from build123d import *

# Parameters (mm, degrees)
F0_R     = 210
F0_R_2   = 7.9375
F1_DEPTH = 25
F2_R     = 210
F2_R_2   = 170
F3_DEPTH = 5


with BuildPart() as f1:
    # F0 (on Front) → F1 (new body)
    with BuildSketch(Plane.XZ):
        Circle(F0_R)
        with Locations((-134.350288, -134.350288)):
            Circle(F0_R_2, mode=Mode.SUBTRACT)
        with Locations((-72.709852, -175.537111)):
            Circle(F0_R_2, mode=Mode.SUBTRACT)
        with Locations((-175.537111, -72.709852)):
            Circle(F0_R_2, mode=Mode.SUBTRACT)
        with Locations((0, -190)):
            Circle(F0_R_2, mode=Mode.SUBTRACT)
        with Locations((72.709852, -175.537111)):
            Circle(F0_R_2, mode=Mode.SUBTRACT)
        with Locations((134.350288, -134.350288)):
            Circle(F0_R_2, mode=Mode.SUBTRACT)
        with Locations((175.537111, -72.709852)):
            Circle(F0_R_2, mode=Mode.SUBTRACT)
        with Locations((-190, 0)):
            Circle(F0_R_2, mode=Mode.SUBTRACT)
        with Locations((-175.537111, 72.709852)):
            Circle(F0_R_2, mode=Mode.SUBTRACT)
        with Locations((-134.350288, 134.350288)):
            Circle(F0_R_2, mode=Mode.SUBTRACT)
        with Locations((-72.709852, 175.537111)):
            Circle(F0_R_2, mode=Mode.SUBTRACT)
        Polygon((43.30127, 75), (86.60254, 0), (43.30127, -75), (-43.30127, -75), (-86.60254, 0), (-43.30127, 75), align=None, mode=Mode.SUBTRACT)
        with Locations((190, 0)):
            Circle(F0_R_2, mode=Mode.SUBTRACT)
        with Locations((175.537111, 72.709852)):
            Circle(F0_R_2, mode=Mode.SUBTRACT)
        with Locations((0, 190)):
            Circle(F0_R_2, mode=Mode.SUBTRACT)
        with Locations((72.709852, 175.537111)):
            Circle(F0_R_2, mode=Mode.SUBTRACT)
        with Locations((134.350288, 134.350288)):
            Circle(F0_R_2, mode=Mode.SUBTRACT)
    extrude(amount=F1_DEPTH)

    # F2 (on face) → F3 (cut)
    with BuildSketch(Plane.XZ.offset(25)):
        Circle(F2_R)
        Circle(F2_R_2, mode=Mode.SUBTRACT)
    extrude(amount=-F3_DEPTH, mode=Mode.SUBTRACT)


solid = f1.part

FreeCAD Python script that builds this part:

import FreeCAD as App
import Part
import Sketcher

V = App.Vector
Q = App.Units.Quantity

doc = App.newDocument("Part")
body = doc.addObject("PartDesign::Body", "Body")

sketch1 = body.newObject("Sketcher::SketchObject", "Sketch")
sketch1.AttachmentSupport = (doc.getObject("XZ_Plane"), [""])
sketch1.MapMode = "FlatFace"
sketch1.addGeometry(Part.Circle(V(0, 0, 0), V(0, 0, 1), 210), False)
sketch1.addGeometry(Part.Circle(V(-134.350288, -134.350288, 0), V(0, 0, 1), 7.9375), False)
sketch1.addGeometry(Part.Circle(V(-72.709852, -175.537111, 0), V(0, 0, 1), 7.9375), False)
sketch1.addGeometry(Part.Circle(V(-175.537111, -72.709852, 0), V(0, 0, 1), 7.9375), False)
sketch1.addGeometry(Part.Circle(V(0, -190, 0), V(0, 0, 1), 7.9375), False)
sketch1.addGeometry(Part.Circle(V(72.709852, -175.537111, 0), V(0, 0, 1), 7.9375), False)
sketch1.addGeometry(Part.Circle(V(134.350288, -134.350288, 0), V(0, 0, 1), 7.9375), False)
sketch1.addGeometry(Part.Circle(V(175.537111, -72.709852, 0), V(0, 0, 1), 7.9375), False)
sketch1.addGeometry(Part.Circle(V(-190, 0, 0), V(0, 0, 1), 7.9375), False)
sketch1.addGeometry(Part.Circle(V(-175.537111, 72.709852, 0), V(0, 0, 1), 7.9375), False)
sketch1.addGeometry(Part.Circle(V(-134.350288, 134.350288, 0), V(0, 0, 1), 7.9375), False)
sketch1.addGeometry(Part.Circle(V(-72.709852, 175.537111, 0), V(0, 0, 1), 7.9375), False)
sketch1.addGeometry(Part.LineSegment(V(-43.30127, 75, 0), V(43.30127, 75, 0)), False)
sketch1.addGeometry(Part.LineSegment(V(43.30127, 75, 0), V(86.60254, 0, 0)), False)
sketch1.addGeometry(Part.LineSegment(V(86.60254, 0, 0), V(43.30127, -75, 0)), False)
sketch1.addGeometry(Part.LineSegment(V(43.30127, -75, 0), V(-43.30127, -75, 0)), False)
sketch1.addGeometry(Part.LineSegment(V(-43.30127, -75, 0), V(-86.60254, 0, 0)), False)
sketch1.addGeometry(Part.LineSegment(V(-86.60254, 0, 0), V(-43.30127, 75, 0)), False)
sketch1.addGeometry(Part.Circle(V(190, 0, 0), V(0, 0, 1), 7.9375), False)
sketch1.addGeometry(Part.Circle(V(175.537111, 72.709852, 0), V(0, 0, 1), 7.9375), False)
sketch1.addGeometry(Part.Circle(V(0, 190, 0), V(0, 0, 1), 7.9375), False)
sketch1.addGeometry(Part.Circle(V(72.709852, 175.537111, 0), V(0, 0, 1), 7.9375), False)
sketch1.addGeometry(Part.Circle(V(134.350288, 134.350288, 0), V(0, 0, 1), 7.9375), False)
sketch1.addConstraint(Sketcher.Constraint("Coincident", 12, 2, 13, 1))
sketch1.addConstraint(Sketcher.Constraint("Coincident", 13, 2, 14, 1))
sketch1.addConstraint(Sketcher.Constraint("Coincident", 14, 2, 15, 1))
sketch1.addConstraint(Sketcher.Constraint("Coincident", 15, 2, 16, 1))
sketch1.addConstraint(Sketcher.Constraint("Coincident", 16, 2, 17, 1))
sketch1.addConstraint(Sketcher.Constraint("Coincident", 17, 2, 12, 1))
sketch1.addConstraint(Sketcher.Constraint("Horizontal", 12))
sketch1.addConstraint(Sketcher.Constraint("Horizontal", 15))
sketch1.addConstraint(Sketcher.Constraint("Coincident", 0, 3, -1, 1))
sketch1.addConstraint(Sketcher.Constraint("Equal", 1, 2))
sketch1.addConstraint(Sketcher.Constraint("Equal", 2, 3))
sketch1.addConstraint(Sketcher.Constraint("Equal", 3, 4))
sketch1.addConstraint(Sketcher.Constraint("Equal", 4, 5))
sketch1.addConstraint(Sketcher.Constraint("Equal", 5, 6))
sketch1.addConstraint(Sketcher.Constraint("Equal", 6, 7))
sketch1.addConstraint(Sketcher.Constraint("Equal", 7, 8))
sketch1.addConstraint(Sketcher.Constraint("Equal", 8, 9))
sketch1.addConstraint(Sketcher.Constraint("Equal", 9, 10))
sketch1.addConstraint(Sketcher.Constraint("Equal", 10, 11))
sketch1.addConstraint(Sketcher.Constraint("Equal", 11, 18))
sketch1.addConstraint(Sketcher.Constraint("Equal", 18, 19))
sketch1.addConstraint(Sketcher.Constraint("Equal", 19, 20))
sketch1.addConstraint(Sketcher.Constraint("Equal", 20, 21))
sketch1.addConstraint(Sketcher.Constraint("Equal", 21, 22))
sketch1.addConstraint(Sketcher.Constraint("Symmetric", 7, 3, 9, 3, -1, 1))
sketch1.addConstraint(Sketcher.Constraint("Symmetric", 6, 3, 10, 3, -1, 1))
sketch1.addConstraint(Sketcher.Constraint("Symmetric", 5, 3, 11, 3, -1, 1))
sketch1.addConstraint(Sketcher.Constraint("Symmetric", 8, 3, 18, 3, -1, 1))
sketch1.addConstraint(Sketcher.Constraint("Symmetric", 3, 3, 19, 3, -1, 1))
sketch1.addConstraint(Sketcher.Constraint("Symmetric", 4, 3, 20, 3, -1, 1))
sketch1.addConstraint(Sketcher.Constraint("Symmetric", 2, 3, 21, 3, -1, 1))
sketch1.addConstraint(Sketcher.Constraint("Symmetric", 1, 3, 22, 3, -1, 1))
sketch1.addConstraint(Sketcher.Constraint("Symmetric", 12, 2, 15, 2, -1, 1))
sketch1.addConstraint(Sketcher.Constraint("Symmetric", 13, 2, 16, 2, -1, 1))
sketch1.addConstraint(Sketcher.Constraint("Symmetric", 2, 3, 5, 3, -2))
sketch1.addConstraint(Sketcher.Constraint("Symmetric", 1, 3, 6, 3, -2))
sketch1.addConstraint(Sketcher.Constraint("Symmetric", 3, 3, 7, 3, -2))
sketch1.addConstraint(Sketcher.Constraint("PointOnObject", 4, 3, -2))
sketch1.addConstraint(Sketcher.Constraint("PointOnObject", 8, 3, -1))
sketch1.addConstraint(Sketcher.Constraint("PointOnObject", 13, 2, -1))
sketch1.addConstraint(Sketcher.Constraint("Parallel", 14, 17))
sketch1.addConstraint(Sketcher.Constraint("Vertical", 12, 2, 14, 2))
sketch1.addConstraint(Sketcher.Constraint("Diameter", 0, Q("420 mm")))
sketch1.addConstraint(Sketcher.Constraint("Angle", 13, Q("-60 deg")))
sketch1.addConstraint(Sketcher.Constraint("Diameter", 1, Q("15.875 mm")))
sketch1.addConstraint(Sketcher.Constraint("DistanceY", 4, 3, -1, 1, Q("190 mm")))
sketch1.addConstraint(Sketcher.Constraint("DistanceX", 8, 3, -1, 1, Q("190 mm")))
sketch1.addConstraint(Sketcher.Constraint("DistanceY", -1, 1, 12, 2, Q("75 mm")))
sketch1.addConstraint(Sketcher.Constraint("DistanceX", 12, 1, 12, 2, Q("86.60254 mm")))
sketch1.addConstraint(Sketcher.Constraint("DistanceX", 1, 3, -1, 1, Q("134.350288 mm")))
sketch1.addConstraint(Sketcher.Constraint("DistanceY", 1, 3, -1, 1, Q("134.350288 mm")))
sketch1.addConstraint(Sketcher.Constraint("DistanceX", 2, 3, -1, 1, Q("72.709852 mm")))
sketch1.addConstraint(Sketcher.Constraint("DistanceY", 2, 3, -1, 1, Q("175.537111 mm")))
sketch1.addConstraint(Sketcher.Constraint("DistanceX", 3, 3, -1, 1, Q("175.537111 mm")))
sketch1.addConstraint(Sketcher.Constraint("DistanceY", 3, 3, -1, 1, Q("72.709852 mm")))
pad1 = body.newObject("PartDesign::Pad", "Pad")
pad1.Profile = sketch1
pad1.Length = 25

sketch2 = body.newObject("Sketcher::SketchObject", "Sketch001")
sketch2.AttachmentSupport = (doc.getObject("XZ_Plane"), [""])
sketch2.MapMode = "FlatFace"
sketch2.AttachmentOffset = App.Placement(V(0, 0, 25), App.Rotation())
sketch2.addGeometry(Part.Circle(V(0, 0, 0), V(0, 0, 1), 210), False)
sketch2.addGeometry(Part.Circle(V(0, 0, 0), V(0, 0, 1), 170), False)
sketch2.addConstraint(Sketcher.Constraint("Coincident", 0, 3, -1, 1))
sketch2.addConstraint(Sketcher.Constraint("Coincident", 1, 3, -1, 1))
sketch2.addConstraint(Sketcher.Constraint("Diameter", 0, Q("420 mm")))
sketch2.addConstraint(Sketcher.Constraint("Diameter", 1, Q("340 mm")))
pocket1 = body.newObject("PartDesign::Pocket", "Pocket")
pocket1.Profile = sketch2
pocket1.Length = 5

doc.recompute()
